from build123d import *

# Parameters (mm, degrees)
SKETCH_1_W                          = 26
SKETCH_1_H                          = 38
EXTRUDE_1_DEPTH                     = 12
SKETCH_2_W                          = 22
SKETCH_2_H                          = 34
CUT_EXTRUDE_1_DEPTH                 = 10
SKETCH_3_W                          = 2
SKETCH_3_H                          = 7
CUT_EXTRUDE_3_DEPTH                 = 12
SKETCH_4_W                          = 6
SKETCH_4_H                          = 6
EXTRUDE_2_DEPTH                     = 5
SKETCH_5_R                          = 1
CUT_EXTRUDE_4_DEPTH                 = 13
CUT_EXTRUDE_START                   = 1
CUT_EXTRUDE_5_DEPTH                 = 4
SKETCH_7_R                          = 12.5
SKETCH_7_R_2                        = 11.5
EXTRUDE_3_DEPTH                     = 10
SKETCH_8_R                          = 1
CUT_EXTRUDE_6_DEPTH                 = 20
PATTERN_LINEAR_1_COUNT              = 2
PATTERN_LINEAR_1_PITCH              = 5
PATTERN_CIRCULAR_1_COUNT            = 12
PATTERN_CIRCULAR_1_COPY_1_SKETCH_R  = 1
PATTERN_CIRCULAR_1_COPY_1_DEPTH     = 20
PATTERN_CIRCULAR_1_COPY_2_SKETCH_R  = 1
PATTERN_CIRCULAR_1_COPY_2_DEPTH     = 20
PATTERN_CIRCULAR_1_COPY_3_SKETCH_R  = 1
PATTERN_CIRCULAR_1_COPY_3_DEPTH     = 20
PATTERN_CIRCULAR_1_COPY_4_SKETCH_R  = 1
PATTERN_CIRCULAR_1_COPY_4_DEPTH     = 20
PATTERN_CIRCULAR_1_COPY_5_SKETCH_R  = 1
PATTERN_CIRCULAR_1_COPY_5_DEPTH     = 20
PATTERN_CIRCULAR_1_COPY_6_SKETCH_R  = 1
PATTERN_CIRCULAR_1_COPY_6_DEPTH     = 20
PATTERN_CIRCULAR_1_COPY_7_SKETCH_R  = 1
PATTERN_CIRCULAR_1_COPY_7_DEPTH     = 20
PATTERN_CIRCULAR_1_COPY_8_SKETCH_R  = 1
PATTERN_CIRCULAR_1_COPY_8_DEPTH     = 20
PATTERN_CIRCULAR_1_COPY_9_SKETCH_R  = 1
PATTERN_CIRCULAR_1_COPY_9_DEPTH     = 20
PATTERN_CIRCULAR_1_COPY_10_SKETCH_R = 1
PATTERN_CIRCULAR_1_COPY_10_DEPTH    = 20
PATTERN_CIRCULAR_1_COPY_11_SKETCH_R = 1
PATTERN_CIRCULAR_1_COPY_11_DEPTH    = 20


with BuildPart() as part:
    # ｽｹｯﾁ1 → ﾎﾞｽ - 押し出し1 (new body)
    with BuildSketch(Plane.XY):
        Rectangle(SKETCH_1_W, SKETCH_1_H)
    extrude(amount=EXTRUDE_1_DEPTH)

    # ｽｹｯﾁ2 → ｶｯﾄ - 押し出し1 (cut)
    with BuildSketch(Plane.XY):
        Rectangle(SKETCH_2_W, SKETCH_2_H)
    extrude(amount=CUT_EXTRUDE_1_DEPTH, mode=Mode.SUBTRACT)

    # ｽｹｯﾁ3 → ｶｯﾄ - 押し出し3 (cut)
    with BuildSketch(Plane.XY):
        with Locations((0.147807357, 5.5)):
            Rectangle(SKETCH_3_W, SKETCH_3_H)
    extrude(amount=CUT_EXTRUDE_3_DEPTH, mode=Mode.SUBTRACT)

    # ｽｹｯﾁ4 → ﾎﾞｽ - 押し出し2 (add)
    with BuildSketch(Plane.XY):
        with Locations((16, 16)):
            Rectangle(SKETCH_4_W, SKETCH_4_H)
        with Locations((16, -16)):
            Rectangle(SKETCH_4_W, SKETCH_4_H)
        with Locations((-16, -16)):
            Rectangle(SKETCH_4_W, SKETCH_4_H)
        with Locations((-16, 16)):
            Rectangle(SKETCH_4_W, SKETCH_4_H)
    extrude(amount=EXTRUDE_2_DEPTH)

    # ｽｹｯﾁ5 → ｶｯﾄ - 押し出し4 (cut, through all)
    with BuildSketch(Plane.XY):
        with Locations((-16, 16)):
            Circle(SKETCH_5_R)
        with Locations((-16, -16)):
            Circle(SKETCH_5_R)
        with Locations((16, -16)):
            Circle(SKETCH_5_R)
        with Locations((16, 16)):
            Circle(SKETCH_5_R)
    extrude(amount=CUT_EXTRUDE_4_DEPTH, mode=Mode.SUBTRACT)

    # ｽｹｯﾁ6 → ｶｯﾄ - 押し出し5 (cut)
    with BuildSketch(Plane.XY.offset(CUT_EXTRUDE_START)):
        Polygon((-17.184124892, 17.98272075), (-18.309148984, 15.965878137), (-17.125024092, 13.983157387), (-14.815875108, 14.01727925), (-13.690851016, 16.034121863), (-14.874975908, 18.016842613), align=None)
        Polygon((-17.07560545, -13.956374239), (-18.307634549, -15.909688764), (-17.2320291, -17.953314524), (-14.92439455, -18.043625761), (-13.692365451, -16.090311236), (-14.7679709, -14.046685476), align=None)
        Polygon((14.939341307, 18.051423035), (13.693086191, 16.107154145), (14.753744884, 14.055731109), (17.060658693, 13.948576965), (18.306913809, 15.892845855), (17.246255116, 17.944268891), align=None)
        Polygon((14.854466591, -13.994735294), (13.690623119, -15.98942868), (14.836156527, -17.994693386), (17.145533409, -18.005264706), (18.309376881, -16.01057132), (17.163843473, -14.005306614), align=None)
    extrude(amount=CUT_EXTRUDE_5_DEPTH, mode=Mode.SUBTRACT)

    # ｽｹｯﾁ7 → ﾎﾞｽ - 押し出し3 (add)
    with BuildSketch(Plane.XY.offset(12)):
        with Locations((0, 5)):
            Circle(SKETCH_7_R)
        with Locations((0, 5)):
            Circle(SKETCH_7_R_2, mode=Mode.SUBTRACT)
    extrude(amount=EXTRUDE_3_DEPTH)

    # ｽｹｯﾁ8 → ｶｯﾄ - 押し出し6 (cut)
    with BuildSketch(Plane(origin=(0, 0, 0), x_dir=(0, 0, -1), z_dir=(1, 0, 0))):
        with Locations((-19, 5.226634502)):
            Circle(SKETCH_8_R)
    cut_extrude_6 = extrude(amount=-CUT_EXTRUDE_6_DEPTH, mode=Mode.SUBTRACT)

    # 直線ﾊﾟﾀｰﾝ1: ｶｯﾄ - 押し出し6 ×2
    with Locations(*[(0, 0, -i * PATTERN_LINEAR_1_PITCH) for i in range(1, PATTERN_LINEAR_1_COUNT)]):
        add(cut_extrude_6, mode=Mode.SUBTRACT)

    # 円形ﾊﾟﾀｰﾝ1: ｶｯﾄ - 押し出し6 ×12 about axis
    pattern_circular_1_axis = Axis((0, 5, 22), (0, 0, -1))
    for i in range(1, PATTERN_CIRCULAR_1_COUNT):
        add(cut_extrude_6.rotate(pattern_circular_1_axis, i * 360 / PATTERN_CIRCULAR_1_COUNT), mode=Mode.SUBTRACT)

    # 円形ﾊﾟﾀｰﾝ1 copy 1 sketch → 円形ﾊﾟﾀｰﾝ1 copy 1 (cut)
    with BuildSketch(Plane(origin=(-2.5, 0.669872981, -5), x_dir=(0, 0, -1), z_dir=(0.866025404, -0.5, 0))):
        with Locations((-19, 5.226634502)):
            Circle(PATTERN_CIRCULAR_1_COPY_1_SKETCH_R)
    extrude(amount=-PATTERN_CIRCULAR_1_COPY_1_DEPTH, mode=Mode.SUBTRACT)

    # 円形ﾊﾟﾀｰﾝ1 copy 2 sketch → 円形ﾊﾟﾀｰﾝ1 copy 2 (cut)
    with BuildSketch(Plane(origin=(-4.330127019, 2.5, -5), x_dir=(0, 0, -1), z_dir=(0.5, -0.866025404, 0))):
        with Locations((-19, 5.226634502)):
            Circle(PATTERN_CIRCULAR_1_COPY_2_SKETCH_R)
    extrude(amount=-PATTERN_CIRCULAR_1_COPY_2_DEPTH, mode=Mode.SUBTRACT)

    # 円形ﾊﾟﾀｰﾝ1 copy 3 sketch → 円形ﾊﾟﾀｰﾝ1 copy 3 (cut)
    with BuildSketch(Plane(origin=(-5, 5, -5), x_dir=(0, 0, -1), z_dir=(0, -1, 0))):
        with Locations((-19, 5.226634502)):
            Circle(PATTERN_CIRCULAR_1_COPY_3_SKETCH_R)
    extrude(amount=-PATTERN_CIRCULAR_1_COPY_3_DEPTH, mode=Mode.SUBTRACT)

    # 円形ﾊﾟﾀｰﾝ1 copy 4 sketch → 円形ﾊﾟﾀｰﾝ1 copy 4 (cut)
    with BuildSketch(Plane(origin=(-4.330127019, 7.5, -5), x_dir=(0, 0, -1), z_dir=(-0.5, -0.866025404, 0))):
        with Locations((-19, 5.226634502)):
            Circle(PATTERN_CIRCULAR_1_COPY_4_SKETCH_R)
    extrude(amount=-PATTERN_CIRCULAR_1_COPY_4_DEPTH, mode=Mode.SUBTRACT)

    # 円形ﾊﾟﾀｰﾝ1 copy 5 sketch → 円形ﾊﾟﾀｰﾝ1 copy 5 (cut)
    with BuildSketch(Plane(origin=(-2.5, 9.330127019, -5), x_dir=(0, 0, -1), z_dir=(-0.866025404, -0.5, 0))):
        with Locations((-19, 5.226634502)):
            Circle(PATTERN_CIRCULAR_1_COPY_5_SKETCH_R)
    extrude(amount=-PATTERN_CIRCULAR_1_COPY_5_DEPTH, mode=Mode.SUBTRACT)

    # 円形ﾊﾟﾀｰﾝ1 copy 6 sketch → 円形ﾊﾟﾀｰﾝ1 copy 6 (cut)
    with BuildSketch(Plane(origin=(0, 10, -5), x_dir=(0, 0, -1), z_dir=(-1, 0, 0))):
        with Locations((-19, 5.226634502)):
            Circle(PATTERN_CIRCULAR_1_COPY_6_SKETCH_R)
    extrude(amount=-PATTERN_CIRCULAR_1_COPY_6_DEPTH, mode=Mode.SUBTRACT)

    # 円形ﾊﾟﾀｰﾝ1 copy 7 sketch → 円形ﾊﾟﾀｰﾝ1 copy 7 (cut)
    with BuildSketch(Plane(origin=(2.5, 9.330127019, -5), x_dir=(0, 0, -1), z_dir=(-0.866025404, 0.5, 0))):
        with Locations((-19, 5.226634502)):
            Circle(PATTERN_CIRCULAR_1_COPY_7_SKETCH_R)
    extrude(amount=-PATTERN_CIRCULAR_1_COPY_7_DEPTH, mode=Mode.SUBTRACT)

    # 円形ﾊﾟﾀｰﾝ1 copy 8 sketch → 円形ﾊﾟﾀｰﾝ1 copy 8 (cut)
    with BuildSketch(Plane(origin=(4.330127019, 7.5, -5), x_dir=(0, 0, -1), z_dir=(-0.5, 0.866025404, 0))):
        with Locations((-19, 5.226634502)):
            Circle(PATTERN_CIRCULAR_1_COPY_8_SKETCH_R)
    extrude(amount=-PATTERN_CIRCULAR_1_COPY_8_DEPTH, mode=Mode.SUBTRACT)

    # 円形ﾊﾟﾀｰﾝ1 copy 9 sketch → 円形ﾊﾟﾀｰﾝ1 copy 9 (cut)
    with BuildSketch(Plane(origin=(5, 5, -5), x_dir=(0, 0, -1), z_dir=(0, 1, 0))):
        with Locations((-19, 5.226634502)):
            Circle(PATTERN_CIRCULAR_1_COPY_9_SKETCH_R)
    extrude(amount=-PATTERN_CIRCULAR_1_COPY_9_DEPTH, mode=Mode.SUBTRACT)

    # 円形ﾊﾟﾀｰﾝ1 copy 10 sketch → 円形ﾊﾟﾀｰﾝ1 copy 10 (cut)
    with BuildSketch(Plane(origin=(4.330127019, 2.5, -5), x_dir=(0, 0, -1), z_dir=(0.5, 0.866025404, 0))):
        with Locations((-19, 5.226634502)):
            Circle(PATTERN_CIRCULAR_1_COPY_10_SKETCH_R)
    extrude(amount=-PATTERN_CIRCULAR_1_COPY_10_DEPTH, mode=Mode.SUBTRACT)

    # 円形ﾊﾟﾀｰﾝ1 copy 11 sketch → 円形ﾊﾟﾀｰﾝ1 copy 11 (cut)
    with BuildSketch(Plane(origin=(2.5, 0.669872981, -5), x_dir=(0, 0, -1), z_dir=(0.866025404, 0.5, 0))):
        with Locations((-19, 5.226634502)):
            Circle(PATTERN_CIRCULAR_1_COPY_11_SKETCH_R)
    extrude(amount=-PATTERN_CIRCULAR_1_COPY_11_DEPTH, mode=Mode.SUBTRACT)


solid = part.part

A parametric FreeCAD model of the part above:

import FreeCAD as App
import Part
import Sketcher
from FreeCAD import Vector

doc = App.newDocument("Part")
body = doc.addObject("PartDesign::Body", "Body")

sketch1 = doc.addObject("Sketcher::SketchObject", "Sketch")
body.addObject(sketch1)
sketch1.AttachmentSupport = (doc.XY_Plane, [""])
sketch1.MapMode = "FlatFace"
sketch1.addGeometry([
    Part.LineSegment(Vector(-13, 19, 0), Vector(-13, -19, 0)),
    Part.LineSegment(Vector(-13, -19, 0), Vector(13, -19, 0)),
    Part.LineSegment(Vector(13, -19, 0), Vector(13, 19, 0)),
    Part.LineSegment(Vector(13, 19, 0), Vector(-13, 19, 0)),
], False)
sketch1.addConstraint([
    Sketcher.Constraint("Coincident", 0, 2, 1, 1),
    Sketcher.Constraint("Coincident", 1, 2, 2, 1),
    Sketcher.Constraint("Coincident", 2, 2, 3, 1),
    Sketcher.Constraint("Coincident", 3, 2, 0, 1),
    Sketcher.Constraint("Vertical", 0),
    Sketcher.Constraint("Horizontal", 1),
    Sketcher.Constraint("Vertical", 2),
    Sketcher.Constraint("Horizontal", 3),
    Sketcher.Constraint("Symmetric", 0, 2, 2, 2, -1, 1),
    Sketcher.Constraint("DistanceX", 1, 1, 1, 2, 26.0),
    Sketcher.Constraint("DistanceY", 0, 2, 0, 1, 38.0),
])
pad1 = doc.addObject("PartDesign::Pad", "Pad")
body.addObject(pad1)
pad1.Profile = sketch1
pad1.Length = 12

sketch2 = doc.addObject("Sketcher::SketchObject", "Sketch001")
body.addObject(sketch2)
sketch2.AttachmentSupport = (doc.XY_Plane, [""])
sketch2.MapMode = "FlatFace"
sketch2.addGeometry([
    Part.LineSegment(Vector(-11, 17, 0), Vector(-11, -17, 0)),
    Part.LineSegment(Vector(-11, -17, 0), Vector(11, -17, 0)),
    Part.LineSegment(Vector(11, -17, 0), Vector(11, 17, 0)),
    Part.LineSegment(Vector(11, 17, 0), Vector(-11, 17, 0)),
], False)
sketch2.addConstraint([
    Sketcher.Constraint("Coincident", 0, 2, 1, 1),
    Sketcher.Constraint("Coincident", 1, 2, 2, 1),
    Sketcher.Constraint("Coincident", 2, 2, 3, 1),
    Sketcher.Constraint("Coincident", 3, 2, 0, 1),
    Sketcher.Constraint("Vertical", 0),
    Sketcher.Constraint("Horizontal", 1),
    Sketcher.Constraint("Vertical", 2),
    Sketcher.Constraint("Horizontal", 3),
    Sketcher.Constraint("Symmetric", 0, 2, 2, 2, -1, 1),
    Sketcher.Constraint("DistanceX", 1, 1, 1, 2, 22.0),
    Sketcher.Constraint("DistanceY", 0, 2, 0, 1, 34.0),
])
pocket1 = doc.addObject("PartDesign::Pocket", "Pocket")
body.addObject(pocket1)
pocket1.Profile = sketch2
pocket1.Length = 10
pocket1.Reversed = True

sketch3 = doc.addObject("Sketcher::SketchObject", "Sketch002")
body.addObject(sketch3)
sketch3.AttachmentSupport = (doc.XY_Plane, [""])
sketch3.MapMode = "FlatFace"
sketch3.addGeometry([
    Part.LineSegment(Vector(-0.9, 9, 0), Vector(-0.9, 2, 0)),
    Part.LineSegment(Vector(-0.9, 2, 0), Vector(1.1, 2, 0)),
    Part.LineSegment(Vector(1.1, 2, 0), Vector(1.1, 9, 0)),
    Part.LineSegment(Vector(1.1, 9, 0), Vector(-0.9, 9, 0)),
], False)
sketch3.addConstraint([
    Sketcher.Constraint("Coincident", 0, 2, 1, 1),
    Sketcher.Constraint("Coincident", 1, 2, 2, 1),
    Sketcher.Constraint("Coincident", 2, 2, 3, 1),
    Sketcher.Constraint("Coincident", 3, 2, 0, 1),
    Sketcher.Constraint("Vertical", 0),
    Sketcher.Constraint("Horizontal", 1),
    Sketcher.Constraint("Vertical", 2),
    Sketcher.Constraint("Horizontal", 3),
    Sketcher.Constraint("DistanceX", 1, 1, 1, 2, 2.0),
    Sketcher.Constraint("DistanceY", 0, 2, 0, 1, 7.0),
    Sketcher.Constraint("DistanceY", -1, 1, 0, 2, 2.0),
    Sketcher.Constraint("DistanceX", 0, 2, -1, 1, 0.852193),
])
pocket2 = doc.addObject("PartDesign::Pocket", "Pocket001")
body.addObject(pocket2)
pocket2.Profile = sketch3
pocket2.Length = 12
pocket2.Reversed = True

sketch4 = doc.addObject("Sketcher::SketchObject", "Sketch003")
body.addObject(sketch4)
sketch4.AttachmentSupport = (doc.XY_Plane, [""])
sketch4.MapMode = "FlatFace"
sketch4.addGeometry([
    Part.LineSegment(Vector(13, 19, 0), Vector(13, 13, 0)),
    Part.LineSegment(Vector(13, 13, 0), Vector(19, 13, 0)),
    Part.LineSegment(Vector(19, 13, 0), Vector(19, 19, 0)),
    Part.LineSegment(Vector(19, 19, 0), Vector(13, 19, 0)),
    Part.LineSegment(Vector(13, -13, 0), Vector(13, -19, 0)),
    Part.LineSegment(Vector(13, -19, 0), Vector(19, -19, 0)),
    Part.LineSegment(Vector(19, -19, 0), Vector(19, -13, 0)),
    Part.LineSegment(Vector(19, -13, 0), Vector(13, -13, 0)),
    Part.LineSegment(Vector(-19, -13, 0), Vector(-19, -19, 0)),
    Part.LineSegment(Vector(-19, -19, 0), Vector(-13, -19, 0)),
    Part.LineSegment(Vector(-13, -19, 0), Vector(-13, -13, 0)),
    Part.LineSegment(Vector(-13, -13, 0), Vector(-19, -13, 0)),
    Part.LineSegment(Vector(-19, 19, 0), Vector(-19, 13, 0)),
    Part.LineSegment(Vector(-19, 13, 0), Vector(-13, 13, 0)),
    Part.LineSegment(Vector(-13, 13, 0), Vector(-13, 19, 0)),
    Part.LineSegment(Vector(-13, 19, 0), Vector(-19, 19, 0)),
], False)
sketch4.addConstraint([
    Sketcher.Constraint("Coincident", 0, 2, 1, 1),
    Sketcher.Constraint("Coincident", 1, 2, 2, 1),
    Sketcher.Constraint("Coincident", 2, 2, 3, 1),
    Sketcher.Constraint("Coincident", 3, 2, 0, 1),
    Sketcher.Constraint("Coincident", 4, 2, 5, 1),
    Sketcher.Constraint("Coincident", 5, 2, 6, 1),
    Sketcher.Constraint("Coincident", 6, 2, 7, 1),
    Sketcher.Constraint("Coincident", 7, 2, 4, 1),
    Sketcher.Constraint("Coincident", 8, 2, 9, 1),
    Sketcher.Constraint("Coincident", 9, 2, 10, 1),
    Sketcher.Constraint("Coincident", 10, 2, 11, 1),
    Sketcher.Constraint("Coincident", 11, 2, 8, 1),
    Sketcher.Constraint("Coincident", 12, 2, 13, 1),
    Sketcher.Constraint("Coincident", 13, 2, 14, 1),
    Sketcher.Constraint("Coincident", 14, 2, 15, 1),
    Sketcher.Constraint("Coincident", 15, 2, 12, 1),
    Sketcher.Constraint("Vertical", 0),
    Sketcher.Constraint("Horizontal", 1),
    Sketcher.Constraint("Vertical", 2),
    Sketcher.Constraint("Horizontal", 3),
    Sketcher.Constraint("Vertical", 4),
    Sketcher.Constraint("Horizontal", 5),
    Sketcher.Constraint("Vertical", 6),
    Sketcher.Constraint("Horizontal", 7),
    Sketcher.Constraint("Vertical", 8),
    Sketcher.Constraint("Horizontal", 9),
    Sketcher.Constraint("Vertical", 10),
    Sketcher.Constraint("Horizontal", 11),
    Sketcher.Constraint("Vertical", 12),
    Sketcher.Constraint("Horizontal", 13),
    Sketcher.Constraint("Vertical", 14),
    Sketcher.Constraint("Horizontal", 15),
    Sketcher.Constraint("Symmetric", 2, 2, 8, 2, -1, 1),
    Sketcher.Constraint("Symmetric", 0, 2, 10, 2, -1, 1),
    Sketcher.Constraint("Symmetric", 6, 2, 12, 2, -1, 1),
    Sketcher.Constraint("Symmetric", 4, 2, 14, 2, -1, 1),
    Sketcher.Constraint("Symmetric", 5, 2, 8, 2, -2),
    Sketcher.Constraint("Symmetric", 7, 2, 10, 2, -2),
    Sketcher.Constraint("Equal", 15, 0),
    Sketcher.Constraint("DistanceX", 1, 1, 1, 2, 6.0),
    Sketcher.Constraint("DistanceX", -1, 1, 0, 2, 13.0),
    Sketcher.Constraint("DistanceY", -1, 1, 0, 2, 13.0),
])
pad2 = doc.addObject("PartDesign::Pad", "Pad001")
body.addObject(pad2)
pad2.Profile = sketch4
pad2.Length = 5

sketch5 = doc.addObject("Sketcher::SketchObject", "Sketch004")
body.addObject(sketch5)
sketch5.AttachmentSupport = (doc.XY_Plane, [""])
sketch5.MapMode = "FlatFace"
sketch5.addGeometry([
    Part.Circle(Vector(-16, 16, 0), Vector(0, 0, 1), 1),
    Part.Circle(Vector(-16, -16, 0), Vector(0, 0, 1), 1),
    Part.Circle(Vector(16, -16, 0), Vector(0, 0, 1), 1),
    Part.Circle(Vector(16, 16, 0), Vector(0, 0, 1), 1),
], False)
sketch5.addConstraint([
    Sketcher.Constraint("Equal", 0, 1),
    Sketcher.Constraint("Equal", 1, 2),
    Sketcher.Constraint("Equal", 2, 3),
    Sketcher.Constraint("Symmetric", 0, 3, 2, 3, -1, 1),
    Sketcher.Constraint("Symmetric", 1, 3, 3, 3, -1, 1),
    Sketcher.Constraint("Symmetric", 1, 3, 2, 3, -2),
    Sketcher.Constraint("Diameter", 0, 2.0),
    Sketcher.Constraint("DistanceX", 0, 3, -1, 1, 16.0),
    Sketcher.Constraint("DistanceY", -1, 1, 0, 3, 16.0),
])
pocket3 = doc.addObject("PartDesign::Pocket", "Pocket002")
body.addObject(pocket3)
pocket3.Profile = sketch5
pocket3.Type = "ThroughAll"
pocket3.Reversed = True

sketch6 = doc.addObject("Sketcher::SketchObject", "Sketch005")
body.addObject(sketch6)
sketch6.AttachmentSupport = (doc.XY_Plane, [""])
sketch6.MapMode = "FlatFace"
sketch6.AttachmentOffset = App.Placement(Vector(0, 0, 1), App.Rotation())
sketch6.addGeometry([
    Part.LineSegment(Vector(-17.2, 18, 0), Vector(-18.3, 16, 0)),
    Part.LineSegment(Vector(-18.3, 16, 0), Vector(-17.1, 14, 0)),
    Part.LineSegment(Vector(-17.1, 14, 0), Vector(-14.8, 14, 0)),
    Part.LineSegment(Vector(-14.8, 14, 0), Vector(-13.7, 16, 0)),
    Part.LineSegment(Vector(-13.7, 16, 0), Vector(-14.9, 18, 0)),
    Part.LineSegment(Vector(-14.9, 18, 0), Vector(-17.2, 18, 0)),
    Part.LineSegment(Vector(-17.1, -14, 0), Vector(-18.3, -15.9, 0)),
    Part.LineSegment(Vector(-18.3, -15.9, 0), Vector(-17.2, -18, 0)),
    Part.LineSegment(Vector(-17.2, -18, 0), Vector(-14.9, -18, 0)),
    Part.LineSegment(Vector(-14.9, -18, 0), Vector(-13.7, -16.1, 0)),
    Part.LineSegment(Vector(-13.7, -16.1, 0), Vector(-14.8, -14, 0)),
    Part.LineSegment(Vector(-14.8, -14, 0), Vector(-17.1, -14, 0)),
    Part.LineSegment(Vector(14.9, 18.1, 0), Vector(13.7, 16.1, 0)),
    Part.LineSegment(Vector(13.7, 16.1, 0), Vector(14.8, 14.1, 0)),
    Part.LineSegment(Vector(14.8, 14.1, 0), Vector(17.1, 13.9, 0)),
    Part.LineSegment(Vector(17.1, 13.9, 0), Vector(18.3, 15.9, 0)),
    Part.LineSegment(Vector(18.3, 15.9, 0), Vector(17.2, 17.9, 0)),
    Part.LineSegment(Vector(17.2, 17.9, 0), Vector(14.9, 18.1, 0)),
    Part.LineSegment(Vector(14.9, -14, 0), Vector(13.7, -16, 0)),
    Part.LineSegment(Vector(13.7, -16, 0), Vector(14.8, -18, 0)),
    Part.LineSegment(Vector(14.8, -18, 0), Vector(17.1, -18, 0)),
    Part.LineSegment(Vector(17.1, -18, 0), Vector(18.3, -16, 0)),
    Part.LineSegment(Vector(18.3, -16, 0), Vector(17.2, -14, 0)),
    Part.LineSegment(Vector(17.2, -14, 0), Vector(14.9, -14, 0)),
], False)
sketch6.addConstraint([
    Sketcher.Constraint("Coincident", 0, 2, 1, 1),
    Sketcher.Constraint("Coincident", 1, 2, 2, 1),
    Sketcher.Constraint("Coincident", 2, 2, 3, 1),
    Sketcher.Constraint("Coincident", 3, 2, 4, 1),
    Sketcher.Constraint("Coincident", 4, 2, 5, 1),
    Sketcher.Constraint("Coincident", 5, 2, 0, 1),
    Sketcher.Constraint("Coincident", 6, 2, 7, 1),
    Sketcher.Constraint("Coincident", 7, 2, 8, 1),
    Sketcher.Constraint("Coincident", 8, 2, 9, 1),
    Sketcher.Constraint("Coincident", 9, 2, 10, 1),
    Sketcher.Constraint("Coincident", 10, 2, 11, 1),
    Sketcher.Constraint("Coincident", 11, 2, 6, 1),
    Sketcher.Constraint("Coincident", 12, 2, 13, 1),
    Sketcher.Constraint("Coincident", 13, 2, 14, 1),
    Sketcher.Constraint("Coincident", 14, 2, 15, 1),
    Sketcher.Constraint("Coincident", 15, 2, 16, 1),
    Sketcher.Constraint("Coincident", 16, 2, 17, 1),
    Sketcher.Constraint("Coincident", 17, 2, 12, 1),
    Sketcher.Constraint("Coincident", 18, 2, 19, 1),
    Sketcher.Constraint("Coincident", 19, 2, 20, 1),
    Sketcher.Constraint("Coincident", 20, 2, 21, 1),
    Sketcher.Constraint("Coincident", 21, 2, 22, 1),
    Sketcher.Constraint("Coincident", 22, 2, 23, 1),
    Sketcher.Constraint("Coincident", 23, 2, 18, 1),
    Sketcher.Constraint("Parallel", 0, 3),
    Sketcher.Constraint("Parallel", 1, 4),
    Sketcher.Constraint("Parallel", 2, 5),
    Sketcher.Constraint("Parallel", 6, 9),
    Sketcher.Constraint("Parallel", 7, 10),
    Sketcher.Constraint("Parallel", 8, 11),
    Sketcher.Constraint("Parallel", 12, 15),
    Sketcher.Constraint("Parallel", 13, 16),
    Sketcher.Constraint("Parallel", 14, 17),
    Sketcher.Constraint("Parallel", 18, 21),
    Sketcher.Constraint("Parallel", 19, 22),
    Sketcher.Constraint("Parallel", 20, 23),
    Sketcher.Constraint("Equal", 0, 1),
    Sketcher.Constraint("Equal", 1, 2),
    Sketcher.Constraint("Equal", 2, 3),
    Sketcher.Constraint("Equal", 5, 6),
    Sketcher.Constraint("Equal", 6, 7),
    Sketcher.Constraint("Equal", 7, 8),
    Sketcher.Constraint("Equal", 8, 9),
    Sketcher.Constraint("Equal", 11, 12),
    Sketcher.Constraint("Equal", 12, 13),
    Sketcher.Constraint("Equal", 13, 14),
    Sketcher.Constraint("Equal", 14, 15),
    Sketcher.Constraint("Equal", 17, 18),
    Sketcher.Constraint("Equal", 18, 19),
    Sketcher.Constraint("Equal", 19, 20),
    Sketcher.Constraint("Equal", 20, 21),
    Sketcher.Constraint("Distance", 0, 2.309401),
    Sketcher.Constraint("DistanceY", 2, 2, 0, 2, 1.948599),
    Sketcher.Constraint("DistanceX", 4, 2, 2, 2, 0.059101),
    Sketcher.Constraint("DistanceX", 9, 2, 20, 2, 30.837899),
    Sketcher.Constraint("DistanceX", 0, 2, -1, 1, 18.309149),
    Sketcher.Constraint("DistanceY", -1, 1, 0, 2, 15.965878),
    Sketcher.Constraint("DistanceX", 3, 2, -1, 1, 13.690851),
    Sketcher.Constraint("DistanceY", 6, 2, -1, 1, 15.909689),
    Sketcher.Constraint("DistanceX", 7, 2, -1, 1, 17.232029),
    Sketcher.Constraint("DistanceY", 9, 2, -1, 1, 16.090311),
    Sketcher.Constraint("DistanceX", 10, 2, -1, 1, 14.767971),
    Sketcher.Constraint("DistanceY", -1, 1, 13, 2, 14.055731),
    Sketcher.Constraint("DistanceX", -1, 1, 14, 2, 17.060659),
    Sketcher.Constraint("DistanceY", -1, 1, 16, 2, 17.944269),
    Sketcher.Constraint("DistanceX", -1, 1, 17, 2, 14.939341),
    Sketcher.Constraint("DistanceY", 18, 2, -1, 1, 15.989429),
    Sketcher.Constraint("DistanceY", 21, 2, -1, 1, 16.010571),
    Sketcher.Constraint("DistanceX", 6, 2, 1, 2, 1.18261),
    Sketcher.Constraint("DistanceX", 2, 2, 12, 2, 28.508961),
    Sketcher.Constraint("DistanceX", 9, 2, 18, 2, 27.382989),
    Sketcher.Constraint("DistanceY", 20, 2, 19, 2, 0.010571),
])
pocket4 = doc.addObject("PartDesign::Pocket", "Pocket003")
body.addObject(pocket4)
pocket4.Profile = sketch6
pocket4.Length = 4
pocket4.Reversed = True

sketch7 = doc.addObject("Sketcher::SketchObject", "Sketch006")
body.addObject(sketch7)
sketch7.AttachmentSupport = (doc.XY_Plane, [""])
sketch7.MapMode = "FlatFace"
sketch7.AttachmentOffset = App.Placement(Vector(0, 0, 12), App.Rotation())
sketch7.addGeometry([
    Part.Circle(Vector(0, 5, 0), Vector(0, 0, 1), 12),
    Part.Circle(Vector(0, 5, 0), Vector(0, 0, 1), 12),
], False)
sketch7.addConstraint([
    Sketcher.Constraint("Coincident", 1, 3, 0, 3),
    Sketcher.Constraint("PointOnObject", 0, 3, -2),
    Sketcher.Constraint("Diameter", 0, 25.0),
    Sketcher.Constraint("Diameter", 1, 23.0),
    Sketcher.Constraint("DistanceY", -1, 1, 0, 3, 5.0),
])
pad3 = doc.addObject("PartDesign::Pad", "Pad002")
body.addObject(pad3)
pad3.Profile = sketch7
pad3.Length = 10

sketch8 = doc.addObject("Sketcher::SketchObject", "Sketch007")
body.addObject(sketch8)
sketch8.AttachmentSupport = (doc.YZ_Plane, [""])
sketch8.MapMode = "FlatFace"
sketch8.addGeometry(Part.Circle(Vector(5.2, 19, 0), Vector(0, 0, 1), 1), False)
sketch8.addConstraint([
    Sketcher.Constraint("Diameter", 0, 2.0),
    Sketcher.Constraint("DistanceY", -1, 1, 0, 3, 19.0),
    Sketcher.Constraint("DistanceX", -1, 1, 0, 3, 5.226635),
])
pocket5 = doc.addObject("PartDesign::Pocket", "Pocket004")
body.addObject(pocket5)
pocket5.Profile = sketch8
pocket5.Length = 20
doc.recompute()

linearpattern = doc.addObject("PartDesign::LinearPattern", "LinearPattern")
body.addObject(linearpattern)
linearpattern.Originals = [pocket5]
linearpattern.Direction = (doc.Z_Axis, [""])
linearpattern.Mode = "offset"
linearpattern.Offset = 5
linearpattern.Occurrences = 2
linearpattern.Reversed = True
body.Tip = linearpattern
doc.recompute()

datumline = doc.addObject("PartDesign::Line", "DatumLine")
body.addObject(datumline)
datumline.Placement = App.Placement(Vector(0, 5, 0), App.Rotation(Vector(0, 0, 1), Vector(0, 0, -1)))
polarpattern = doc.addObject("PartDesign::PolarPattern", "PolarPattern")
body.addObject(polarpattern)
polarpattern.Originals = [pocket5]
polarpattern.Axis = (datumline, [""])
polarpattern.Angle = 360
polarpattern.Occurrences = 12
body.Tip = polarpattern

sketch9 = doc.addObject("Sketcher::SketchObject", "Sketch008")
body.addObject(sketch9)
sketch9.Placement = App.Placement(Vector(-2.5, 0.669873, -5), App.Rotation(Vector(0, 0, -1), Vector(0.5, 0.866025404, 0), Vector(0.866025404, -0.5, 0), "ZXY"))
sketch9.addGeometry(Part.Circle(Vector(-19, 5.2, 0), Vector(0, 0, 1), 1), False)
sketch9.addConstraint([
    Sketcher.Constraint("Diameter", 0, 2.0),
    Sketcher.Constraint("DistanceX", 0, 3, -1, 1, 19.0),
    Sketcher.Constraint("DistanceY", -1, 1, 0, 3, 5.226635),
])
pocket6 = doc.addObject("PartDesign::Pocket", "Pocket005")
body.addObject(pocket6)
pocket6.Profile = sketch9
pocket6.Length = 20

sketch10 = doc.addObject("Sketcher::SketchObject", "Sketch009")
body.addObject(sketch10)
sketch10.Placement = App.Placement(Vector(-4.330127, 2.5, -5), App.Rotation(Vector(0, 0, -1), Vector(0.866025404, 0.5, 0), Vector(0.5, -0.866025404, 0), "ZXY"))
sketch10.addGeometry(Part.Circle(Vector(-19, 5.2, 0), Vector(0, 0, 1), 1), False)
sketch10.addConstraint([
    Sketcher.Constraint("Diameter", 0, 2.0),
    Sketcher.Constraint("DistanceX", 0, 3, -1, 1, 19.0),
    Sketcher.Constraint("DistanceY", -1, 1, 0, 3, 5.226635),
])
pocket7 = doc.addObject("PartDesign::Pocket", "Pocket006")
body.addObject(pocket7)
pocket7.Profile = sketch10
pocket7.Length = 20

sketch11 = doc.addObject("Sketcher::SketchObject", "Sketch010")
body.addObject(sketch11)
sketch11.AttachmentSupport = (doc.XZ_Plane, [""])
sketch11.MapMode = "FlatFace"
sketch11.AttachmentOffset = App.Placement(Vector(0, 0, -5), App.Rotation())
sketch11.addGeometry(Part.Circle(Vector(0.2, 14, 0), Vector(0, 0, 1), 1), False)
sketch11.addConstraint([
    Sketcher.Constraint("Diameter", 0, 2.0),
    Sketcher.Constraint("DistanceY", -1, 1, 0, 3, 14.0),
    Sketcher.Constraint("DistanceX", -1, 1, 0, 3, 0.226635),
])
pocket8 = doc.addObject("PartDesign::Pocket", "Pocket007")
body.addObject(pocket8)
pocket8.Profile = sketch11
pocket8.Length = 20

sketch12 = doc.addObject("Sketcher::SketchObject", "Sketch011")
body.addObject(sketch12)
sketch12.Placement = App.Placement(Vector(-4.330127, 7.5, -5), App.Rotation(Vector(0, 0, -1), Vector(0.866025404, -0.5, 0), Vector(-0.5, -0.866025404, 0), "ZXY"))
sketch12.addGeometry(Part.Circle(Vector(-19, 5.2, 0), Vector(0, 0, 1), 1), False)
sketch12.addConstraint([
    Sketcher.Constraint("Diameter", 0, 2.0),
    Sketcher.Constraint("DistanceX", 0, 3, -1, 1, 19.0),
    Sketcher.Constraint("DistanceY", -1, 1, 0, 3, 5.226635),
])
pocket9 = doc.addObject("PartDesign::Pocket", "Pocket008")
body.addObject(pocket9)
pocket9.Profile = sketch12
pocket9.Length = 20

sketch13 = doc.addObject("Sketcher::SketchObject", "Sketch012")
body.addObject(sketch13)
sketch13.Placement = App.Placement(Vector(-2.5, 9.330127, -5), App.Rotation(Vector(0, 0, -1), Vector(0.5, -0.866025404, 0), Vector(-0.866025404, -0.5, 0), "ZXY"))
sketch13.addGeometry(Part.Circle(Vector(-19, 5.2, 0), Vector(0, 0, 1), 1), False)
sketch13.addConstraint([
    Sketcher.Constraint("Diameter", 0, 2.0),
    Sketcher.Constraint("DistanceX", 0, 3, -1, 1, 19.0),
    Sketcher.Constraint("DistanceY", -1, 1, 0, 3, 5.226635),
])
pocket10 = doc.addObject("PartDesign::Pocket", "Pocket009")
body.addObject(pocket10)
pocket10.Profile = sketch13
pocket10.Length = 20

sketch14 = doc.addObject("Sketcher::SketchObject", "Sketch013")
body.addObject(sketch14)
sketch14.AttachmentSupport = (doc.YZ_Plane, [""])
sketch14.MapMode = "FlatFace"
sketch14.addGeometry(Part.Circle(Vector(4.8, 14, 0), Vector(0, 0, 1), 1), False)
sketch14.addConstraint([
    Sketcher.Constraint("Diameter", 0, 2.0),
    Sketcher.Constraint("DistanceY", -1, 1, 0, 3, 14.0),
    Sketcher.Constraint("DistanceX", -1, 1, 0, 3, 4.773365),
])
pocket11 = doc.addObject("PartDesign::Pocket", "Pocket010")
body.addObject(pocket11)
pocket11.Profile = sketch14
pocket11.Length = 20
pocket11.Reversed = True

sketch15 = doc.addObject("Sketcher::SketchObject", "Sketch014")
body.addObject(sketch15)
sketch15.Placement = App.Placement(Vector(2.5, 9.330127, -5), App.Rotation(Vector(0, 0, -1), Vector(-0.5, -0.866025404, 0), Vector(-0.866025404, 0.5, 0), "ZXY"))
sketch15.addGeometry(Part.Circle(Vector(-19, 5.2, 0), Vector(0, 0, 1), 1), False)
sketch15.addConstraint([
    Sketcher.Constraint("Diameter", 0, 2.0),
    Sketcher.Constraint("DistanceX", 0, 3, -1, 1, 19.0),
    Sketcher.Constraint("DistanceY", -1, 1, 0, 3, 5.226635),
])
pocket12 = doc.addObject("PartDesign::Pocket", "Pocket011")
body.addObject(pocket12)
pocket12.Profile = sketch15
pocket12.Length = 20

sketch16 = doc.addObject("Sketcher::SketchObject", "Sketch015")
body.addObject(sketch16)
sketch16.Placement = App.Placement(Vector(4.330127, 7.5, -5), App.Rotation(Vector(0, 0, -1), Vector(-0.866025404, -0.5, 0), Vector(-0.5, 0.866025404, 0), "ZXY"))
sketch16.addGeometry(Part.Circle(Vector(-19, 5.2, 0), Vector(0, 0, 1), 1), False)
sketch16.addConstraint([
    Sketcher.Constraint("Diameter", 0, 2.0),
    Sketcher.Constraint("DistanceX", 0, 3, -1, 1, 19.0),
    Sketcher.Constraint("DistanceY", -1, 1, 0, 3, 5.226635),
])
pocket13 = doc.addObject("PartDesign::Pocket", "Pocket012")
body.addObject(pocket13)
pocket13.Profile = sketch16
pocket13.Length = 20

sketch17 = doc.addObject("Sketcher::SketchObject", "Sketch016")
body.addObject(sketch17)
sketch17.AttachmentSupport = (doc.XZ_Plane, [""])
sketch17.MapMode = "FlatFace"
sketch17.AttachmentOffset = App.Placement(Vector(0, 0, -5), App.Rotation())
sketch17.addGeometry(Part.Circle(Vector(-0.2, 14, 0), Vector(0, 0, 1), 1), False)
sketch17.addConstraint([
    Sketcher.Constraint("Diameter", 0, 2.0),
    Sketcher.Constraint("DistanceY", -1, 1, 0, 3, 14.0),
    Sketcher.Constraint("DistanceX", 0, 3, -1, 1, 0.226635),
])
pocket14 = doc.addObject("PartDesign::Pocket", "Pocket013")
body.addObject(pocket14)
pocket14.Profile = sketch17
pocket14.Length = 20
pocket14.Reversed = True

sketch18 = doc.addObject("Sketcher::SketchObject", "Sketch017")
body.addObject(sketch18)
sketch18.Placement = App.Placement(Vector(4.330127, 2.5, -5), App.Rotation(Vector(0, 0, -1), Vector(-0.866025404, 0.5, 0), Vector(0.5, 0.866025404, 0), "ZXY"))
sketch18.addGeometry(Part.Circle(Vector(-19, 5.2, 0), Vector(0, 0, 1), 1), False)
sketch18.addConstraint([
    Sketcher.Constraint("Diameter", 0, 2.0),
    Sketcher.Constraint("DistanceX", 0, 3, -1, 1, 19.0),
    Sketcher.Constraint("DistanceY", -1, 1, 0, 3, 5.226635),
])
pocket15 = doc.addObject("PartDesign::Pocket", "Pocket014")
body.addObject(pocket15)
pocket15.Profile = sketch18
pocket15.Length = 20

sketch19 = doc.addObject("Sketcher::SketchObject", "Sketch018")
body.addObject(sketch19)
sketch19.Placement = App.Placement(Vector(2.5, 0.669873, -5), App.Rotation(Vector(0, 0, -1), Vector(-0.5, 0.866025404, 0), Vector(0.866025404, 0.5, 0), "ZXY"))
sketch19.addGeometry(Part.Circle(Vector(-19, 5.2, 0), Vector(0, 0, 1), 1), False)
sketch19.addConstraint([
    Sketcher.Constraint("Diameter", 0, 2.0),
    Sketcher.Constraint("DistanceX", 0, 3, -1, 1, 19.0),
    Sketcher.Constraint("DistanceY", -1, 1, 0, 3, 5.226635),
])
pocket16 = doc.addObject("PartDesign::Pocket", "Pocket015")
body.addObject(pocket16)
pocket16.Profile = sketch19
pocket16.Length = 20

doc.recompute()
